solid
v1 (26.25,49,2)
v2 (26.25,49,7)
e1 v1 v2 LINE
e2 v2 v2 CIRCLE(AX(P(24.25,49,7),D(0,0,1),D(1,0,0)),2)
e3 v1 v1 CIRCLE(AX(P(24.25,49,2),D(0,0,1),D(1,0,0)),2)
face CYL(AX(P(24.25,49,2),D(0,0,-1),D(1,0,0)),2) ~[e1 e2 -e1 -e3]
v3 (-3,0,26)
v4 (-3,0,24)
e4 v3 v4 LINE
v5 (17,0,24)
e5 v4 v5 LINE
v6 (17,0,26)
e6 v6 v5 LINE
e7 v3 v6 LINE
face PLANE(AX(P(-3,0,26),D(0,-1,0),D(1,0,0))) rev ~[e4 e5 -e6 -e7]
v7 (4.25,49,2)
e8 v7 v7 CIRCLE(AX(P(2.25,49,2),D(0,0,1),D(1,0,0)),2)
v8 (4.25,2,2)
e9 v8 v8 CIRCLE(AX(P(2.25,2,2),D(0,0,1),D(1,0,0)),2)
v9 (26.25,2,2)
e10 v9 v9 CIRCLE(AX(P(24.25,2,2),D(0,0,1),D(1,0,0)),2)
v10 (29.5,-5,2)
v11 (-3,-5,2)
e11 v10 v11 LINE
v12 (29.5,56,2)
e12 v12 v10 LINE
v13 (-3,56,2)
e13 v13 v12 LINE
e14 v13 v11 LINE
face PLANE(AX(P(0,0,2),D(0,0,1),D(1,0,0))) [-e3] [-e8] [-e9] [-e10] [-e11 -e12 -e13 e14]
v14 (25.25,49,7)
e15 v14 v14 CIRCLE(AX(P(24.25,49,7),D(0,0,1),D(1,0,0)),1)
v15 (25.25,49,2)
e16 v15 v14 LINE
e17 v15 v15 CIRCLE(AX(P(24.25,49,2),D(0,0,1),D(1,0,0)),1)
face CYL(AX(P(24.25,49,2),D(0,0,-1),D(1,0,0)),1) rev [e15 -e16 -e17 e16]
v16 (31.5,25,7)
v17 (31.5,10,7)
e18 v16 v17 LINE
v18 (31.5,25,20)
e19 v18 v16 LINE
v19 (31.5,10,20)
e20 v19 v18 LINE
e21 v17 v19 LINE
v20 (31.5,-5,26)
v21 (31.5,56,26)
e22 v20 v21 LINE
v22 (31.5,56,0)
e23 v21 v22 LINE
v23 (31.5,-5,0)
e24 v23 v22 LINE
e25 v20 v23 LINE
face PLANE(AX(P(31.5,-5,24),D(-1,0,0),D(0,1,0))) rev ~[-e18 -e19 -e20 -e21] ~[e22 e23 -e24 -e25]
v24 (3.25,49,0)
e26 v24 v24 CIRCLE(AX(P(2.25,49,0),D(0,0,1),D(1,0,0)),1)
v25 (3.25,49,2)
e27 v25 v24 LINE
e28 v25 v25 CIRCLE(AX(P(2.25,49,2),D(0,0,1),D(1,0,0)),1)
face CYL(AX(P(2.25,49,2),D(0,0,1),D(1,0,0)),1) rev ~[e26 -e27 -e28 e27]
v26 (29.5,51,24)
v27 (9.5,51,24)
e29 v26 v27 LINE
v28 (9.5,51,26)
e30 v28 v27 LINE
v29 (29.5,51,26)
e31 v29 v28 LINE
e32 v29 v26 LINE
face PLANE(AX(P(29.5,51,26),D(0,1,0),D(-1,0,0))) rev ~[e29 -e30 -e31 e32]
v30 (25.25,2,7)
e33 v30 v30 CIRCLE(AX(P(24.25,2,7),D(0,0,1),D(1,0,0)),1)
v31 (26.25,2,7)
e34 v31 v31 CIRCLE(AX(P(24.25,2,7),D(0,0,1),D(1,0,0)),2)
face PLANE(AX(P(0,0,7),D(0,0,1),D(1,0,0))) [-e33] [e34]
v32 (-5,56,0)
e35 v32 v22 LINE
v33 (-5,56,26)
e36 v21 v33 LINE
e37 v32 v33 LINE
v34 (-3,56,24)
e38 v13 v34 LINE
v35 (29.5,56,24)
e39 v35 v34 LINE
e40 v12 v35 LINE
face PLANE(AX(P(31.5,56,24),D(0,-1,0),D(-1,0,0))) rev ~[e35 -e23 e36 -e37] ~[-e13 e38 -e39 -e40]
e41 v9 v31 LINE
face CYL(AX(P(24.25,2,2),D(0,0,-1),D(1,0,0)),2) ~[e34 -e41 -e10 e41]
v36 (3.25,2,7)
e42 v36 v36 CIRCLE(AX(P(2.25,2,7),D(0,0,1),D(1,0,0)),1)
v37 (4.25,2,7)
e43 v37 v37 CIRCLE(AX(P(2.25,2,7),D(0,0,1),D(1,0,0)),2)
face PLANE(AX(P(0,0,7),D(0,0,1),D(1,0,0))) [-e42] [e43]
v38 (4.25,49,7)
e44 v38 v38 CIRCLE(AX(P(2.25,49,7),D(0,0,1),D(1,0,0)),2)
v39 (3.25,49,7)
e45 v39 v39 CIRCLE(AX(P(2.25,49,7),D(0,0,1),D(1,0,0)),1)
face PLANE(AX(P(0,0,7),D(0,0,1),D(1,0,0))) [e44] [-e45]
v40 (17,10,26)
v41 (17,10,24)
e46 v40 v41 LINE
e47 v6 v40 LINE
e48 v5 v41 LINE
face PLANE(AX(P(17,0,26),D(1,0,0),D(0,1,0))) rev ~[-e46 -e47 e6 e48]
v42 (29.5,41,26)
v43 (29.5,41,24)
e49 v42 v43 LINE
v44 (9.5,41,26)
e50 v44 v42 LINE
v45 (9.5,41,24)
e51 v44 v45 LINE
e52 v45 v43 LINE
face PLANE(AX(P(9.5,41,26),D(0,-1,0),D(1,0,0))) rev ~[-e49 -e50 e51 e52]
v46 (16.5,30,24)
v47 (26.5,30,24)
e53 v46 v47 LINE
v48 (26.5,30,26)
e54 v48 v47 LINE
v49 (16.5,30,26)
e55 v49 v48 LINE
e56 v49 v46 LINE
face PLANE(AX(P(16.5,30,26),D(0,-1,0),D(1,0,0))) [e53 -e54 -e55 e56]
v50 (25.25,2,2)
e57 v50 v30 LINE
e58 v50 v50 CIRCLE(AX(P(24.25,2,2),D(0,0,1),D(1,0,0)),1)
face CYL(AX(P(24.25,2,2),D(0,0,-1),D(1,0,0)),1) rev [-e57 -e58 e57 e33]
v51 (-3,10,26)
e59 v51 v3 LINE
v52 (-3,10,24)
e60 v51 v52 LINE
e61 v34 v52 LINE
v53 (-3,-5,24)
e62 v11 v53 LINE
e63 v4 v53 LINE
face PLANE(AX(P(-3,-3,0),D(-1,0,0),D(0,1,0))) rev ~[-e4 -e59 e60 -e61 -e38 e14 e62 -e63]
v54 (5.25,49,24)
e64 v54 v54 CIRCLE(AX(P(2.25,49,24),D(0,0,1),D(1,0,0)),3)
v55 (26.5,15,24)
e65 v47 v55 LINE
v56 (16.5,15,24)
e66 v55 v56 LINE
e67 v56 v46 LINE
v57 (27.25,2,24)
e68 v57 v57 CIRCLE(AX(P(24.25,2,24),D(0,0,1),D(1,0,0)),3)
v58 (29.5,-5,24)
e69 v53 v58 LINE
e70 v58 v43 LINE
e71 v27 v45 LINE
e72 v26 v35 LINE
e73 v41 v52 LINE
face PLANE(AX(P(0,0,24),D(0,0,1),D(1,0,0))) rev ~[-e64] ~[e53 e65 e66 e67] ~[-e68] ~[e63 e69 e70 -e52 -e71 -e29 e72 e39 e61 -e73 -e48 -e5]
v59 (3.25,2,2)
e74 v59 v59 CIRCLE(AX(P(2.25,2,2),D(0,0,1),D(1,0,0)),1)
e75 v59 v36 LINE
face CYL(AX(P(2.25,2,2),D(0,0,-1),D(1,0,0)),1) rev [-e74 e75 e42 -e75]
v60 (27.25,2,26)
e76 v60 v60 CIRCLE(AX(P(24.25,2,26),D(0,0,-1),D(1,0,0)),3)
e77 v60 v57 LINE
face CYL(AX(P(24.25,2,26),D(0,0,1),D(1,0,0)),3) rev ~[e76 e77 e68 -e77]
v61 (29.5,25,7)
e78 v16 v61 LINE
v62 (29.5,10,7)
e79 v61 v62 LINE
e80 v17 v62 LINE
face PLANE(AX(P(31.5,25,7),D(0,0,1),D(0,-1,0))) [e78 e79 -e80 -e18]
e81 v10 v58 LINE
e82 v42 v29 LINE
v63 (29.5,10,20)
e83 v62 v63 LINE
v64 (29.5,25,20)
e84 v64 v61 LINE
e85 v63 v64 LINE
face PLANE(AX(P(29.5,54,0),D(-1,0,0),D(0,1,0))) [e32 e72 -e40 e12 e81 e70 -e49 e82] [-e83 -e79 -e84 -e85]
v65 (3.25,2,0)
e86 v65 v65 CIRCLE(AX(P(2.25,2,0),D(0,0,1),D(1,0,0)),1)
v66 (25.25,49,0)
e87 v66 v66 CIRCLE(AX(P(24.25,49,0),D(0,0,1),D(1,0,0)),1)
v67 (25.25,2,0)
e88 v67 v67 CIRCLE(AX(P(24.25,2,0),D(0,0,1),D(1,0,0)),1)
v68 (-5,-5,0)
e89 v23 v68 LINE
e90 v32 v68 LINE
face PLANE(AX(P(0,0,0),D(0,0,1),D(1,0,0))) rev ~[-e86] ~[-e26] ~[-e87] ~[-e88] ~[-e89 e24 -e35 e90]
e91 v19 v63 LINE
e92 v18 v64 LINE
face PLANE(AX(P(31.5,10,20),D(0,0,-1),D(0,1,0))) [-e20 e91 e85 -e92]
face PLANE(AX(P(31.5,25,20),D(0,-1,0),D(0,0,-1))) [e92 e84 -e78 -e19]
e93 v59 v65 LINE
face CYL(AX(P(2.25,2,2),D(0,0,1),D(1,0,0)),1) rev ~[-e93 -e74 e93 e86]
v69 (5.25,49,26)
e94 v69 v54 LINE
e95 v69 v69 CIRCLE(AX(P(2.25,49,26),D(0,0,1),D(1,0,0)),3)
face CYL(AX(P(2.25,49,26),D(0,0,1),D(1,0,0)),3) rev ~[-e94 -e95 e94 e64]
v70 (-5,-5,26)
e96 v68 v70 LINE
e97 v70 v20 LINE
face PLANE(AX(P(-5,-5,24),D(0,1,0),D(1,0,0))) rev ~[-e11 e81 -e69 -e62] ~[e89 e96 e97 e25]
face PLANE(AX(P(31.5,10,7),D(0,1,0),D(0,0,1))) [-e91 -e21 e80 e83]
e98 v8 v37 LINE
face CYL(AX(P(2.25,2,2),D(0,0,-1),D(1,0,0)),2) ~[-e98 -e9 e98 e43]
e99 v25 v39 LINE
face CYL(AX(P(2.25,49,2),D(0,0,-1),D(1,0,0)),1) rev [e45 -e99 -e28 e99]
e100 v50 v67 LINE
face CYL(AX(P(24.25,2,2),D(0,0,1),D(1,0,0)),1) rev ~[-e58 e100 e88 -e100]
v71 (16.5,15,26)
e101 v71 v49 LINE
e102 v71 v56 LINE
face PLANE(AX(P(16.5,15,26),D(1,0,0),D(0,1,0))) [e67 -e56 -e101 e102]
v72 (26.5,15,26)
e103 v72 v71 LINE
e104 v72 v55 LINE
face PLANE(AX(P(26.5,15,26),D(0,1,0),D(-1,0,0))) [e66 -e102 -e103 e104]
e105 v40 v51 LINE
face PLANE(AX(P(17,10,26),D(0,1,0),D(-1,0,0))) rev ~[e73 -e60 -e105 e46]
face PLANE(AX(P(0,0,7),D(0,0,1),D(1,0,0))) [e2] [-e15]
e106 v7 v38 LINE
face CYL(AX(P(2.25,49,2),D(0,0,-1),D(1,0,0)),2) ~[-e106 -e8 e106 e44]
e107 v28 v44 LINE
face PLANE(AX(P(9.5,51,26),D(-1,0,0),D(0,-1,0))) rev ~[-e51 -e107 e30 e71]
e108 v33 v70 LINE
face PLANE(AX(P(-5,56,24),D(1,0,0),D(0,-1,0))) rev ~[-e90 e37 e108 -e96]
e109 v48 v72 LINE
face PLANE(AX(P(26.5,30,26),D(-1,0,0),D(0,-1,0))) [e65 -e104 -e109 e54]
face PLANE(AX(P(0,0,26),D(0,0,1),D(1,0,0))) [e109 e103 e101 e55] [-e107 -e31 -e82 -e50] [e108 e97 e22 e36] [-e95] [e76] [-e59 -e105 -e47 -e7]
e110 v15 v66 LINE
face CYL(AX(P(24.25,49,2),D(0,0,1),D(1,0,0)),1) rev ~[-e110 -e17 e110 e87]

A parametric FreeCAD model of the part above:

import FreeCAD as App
import Part
import Sketcher
Q = App.Units.Quantity

doc = App.newDocument("Part")
body = doc.addObject("PartDesign::Body", "Body")

sketch1 = body.newObject("Sketcher::SketchObject", "Sketch")
sketch1.AttachmentSupport = (doc.getObject("XY_Plane"), [""])
sketch1.MapMode = "FlatFace"
sketch1.addGeometry(Part.LineSegment(App.Vector(-5, 56, 0), App.Vector(-5, -5, 0)), False)
sketch1.addGeometry(Part.LineSegment(App.Vector(-5, -5, 0), App.Vector(32, -5, 0)), False)
sketch1.addGeometry(Part.LineSegment(App.Vector(32, -5, 0), App.Vector(32, 56, 0)), False)
sketch1.addGeometry(Part.LineSegment(App.Vector(32, 56, 0), App.Vector(-5, 56, 0)), False)
sketch1.addConstraint(Sketcher.Constraint("Coincident", 0, 2, 1, 1))
sketch1.addConstraint(Sketcher.Constraint("Coincident", 1, 2, 2, 1))
sketch1.addConstraint(Sketcher.Constraint("Coincident", 2, 2, 3, 1))
sketch1.addConstraint(Sketcher.Constraint("Coincident", 3, 2, 0, 1))
sketch1.addConstraint(Sketcher.Constraint("Vertical", 0))
sketch1.addConstraint(Sketcher.Constraint("Horizontal", 1))
sketch1.addConstraint(Sketcher.Constraint("Vertical", 2))
sketch1.addConstraint(Sketcher.Constraint("Horizontal", 3))
sketch1.addConstraint(Sketcher.Constraint("DistanceY", 0, 2, 0, 1, Q("61 mm")))
sketch1.addConstraint(Sketcher.Constraint("DistanceX", 1, 1, 1, 2, Q("36.5 mm")))
sketch1.addConstraint(Sketcher.Constraint("DistanceX", 0, 2, -1, 1, Q("5 mm")))
sketch1.addConstraint(Sketcher.Constraint("DistanceY", 0, 2, -1, 1, Q("5 mm")))
pad1 = body.newObject("PartDesign::Pad", "Pad")
pad1.Profile = sketch1
pad1.Length = 2

sketch2 = body.newObject("Sketcher::SketchObject", "Sketch001")
sketch2.AttachmentSupport = (doc.getObject("XY_Plane"), [""])
sketch2.MapMode = "FlatFace"
sketch2.addGeometry(Part.LineSegment(App.Vector(-3, -5, 0), App.Vector(-3, 56, 0)), False)
sketch2.addGeometry(Part.LineSegment(App.Vector(-3, 56, 0), App.Vector(-5, 56, 0)), False)
sketch2.addGeometry(Part.LineSegment(App.Vector(-5, 56, 0), App.Vector(-5, -5, 0)), False)
sketch2.addGeometry(Part.LineSegment(App.Vector(-5, -5, 0), App.Vector(-3, -5, 0)), False)
sketch2.addGeometry(Part.LineSegment(App.Vector(29.5, 56, 0), App.Vector(29.5, -5, 0)), False)
sketch2.addGeometry(Part.LineSegment(App.Vector(29.5, -5, 0), App.Vector(31.5, -5, 0)), False)
sketch2.addGeometry(Part.LineSegment(App.Vector(31.5, -5, 0), App.Vector(31.5, 56, 0)), False)
sketch2.addGeometry(Part.LineSegment(App.Vector(31.5, 56, 0), App.Vector(29.5, 56, 0)), False)
sketch2.addConstraint(Sketcher.Constraint("Coincident", 0, 2, 1, 1))
sketch2.addConstraint(Sketcher.Constraint("Coincident", 1, 2, 2, 1))
sketch2.addConstraint(Sketcher.Constraint("Coincident", 2, 2, 3, 1))
sketch2.addConstraint(Sketcher.Constraint("Coincident", 3, 2, 0, 1))
sketch2.addConstraint(Sketcher.Constraint("Coincident", 4, 2, 5, 1))
sketch2.addConstraint(Sketcher.Constraint("Coincident", 5, 2, 6, 1))
sketch2.addConstraint(Sketcher.Constraint("Coincident", 6, 2, 7, 1))
sketch2.addConstraint(Sketcher.Constraint("Coincident", 7, 2, 4, 1))
sketch2.addConstraint(Sketcher.Constraint("Vertical", 0))
sketch2.addConstraint(Sketcher.Constraint("Horizontal", 1))
sketch2.addConstraint(Sketcher.Constraint("Vertical", 2))
sketch2.addConstraint(Sketcher.Constraint("Horizontal", 3))
sketch2.addConstraint(Sketcher.Constraint("Vertical", 4))
sketch2.addConstraint(Sketcher.Constraint("Horizontal", 5))
sketch2.addConstraint(Sketcher.Constraint("Vertical", 6))
sketch2.addConstraint(Sketcher.Constraint("Horizontal", 7))
sketch2.addConstraint(Sketcher.Constraint("Horizontal", 3, 2, 4, 2))
sketch2.addConstraint(Sketcher.Constraint("Horizontal", 1, 2, 6, 2))
sketch2.addConstraint(Sketcher.Constraint("Equal", 3, 5))
sketch2.addConstraint(Sketcher.Constraint("DistanceX", 1, 2, 1, 1, Q("2 mm")))
sketch2.addConstraint(Sketcher.Constraint("DistanceX", 0, 2, -1, 1, Q("3 mm")))
sketch2.addConstraint(Sketcher.Constraint("DistanceY", 0, 1, 0, 2, Q("61 mm")))
sketch2.addConstraint(Sketcher.Constraint("DistanceY", -1, 1, 0, 2, Q("56 mm")))
sketch2.addConstraint(Sketcher.Constraint("DistanceX", -1, 1, 4, 2, Q("29.5 mm")))
pad2 = body.newObject("PartDesign::Pad", "Pad001")
pad2.Profile = sketch2
pad2.Length = 24

sketch3 = body.newObject("Sketcher::SketchObject", "Sketch002")
sketch3.AttachmentSupport = (doc.getObject("XY_Plane"), [""])
sketch3.MapMode = "FlatFace"
sketch3.AttachmentOffset = App.Placement(App.Vector(0, 0, 2), App.Rotation())
sketch3.addGeometry(Part.Circle(App.Vector(2.2, 49, 0), App.Vector(0, 0, 1), 2), False)
sketch3.addGeometry(Part.Circle(App.Vector(2.2, 49, 0), App.Vector(0, 0, 1), 1), False)
sketch3.addGeometry(Part.Circle(App.Vector(24.2, 49, 0), App.Vector(0, 0, 1), 2), False)
sketch3.addGeometry(Part.Circle(App.Vector(24.2, 49, 0), App.Vector(0, 0, 1), 1), False)
sketch3.addGeometry(Part.Circle(App.Vector(2.2, 2, 0), App.Vector(0, 0, 1), 2), False)
sketch3.addGeometry(Part.Circle(App.Vector(2.2, 2, 0), App.Vector(0, 0, 1), 1), False)
sketch3.addGeometry(Part.Circle(App.Vector(24.2, 2, 0), App.Vector(0, 0, 1), 2), False)
sketch3.addGeometry(Part.Circle(App.Vector(24.2, 2, 0), App.Vector(0, 0, 1), 1), False)
sketch3.addConstraint(Sketcher.Constraint("Coincident", 1, 3, 0, 3))
sketch3.addConstraint(Sketcher.Constraint("Coincident", 3, 3, 2, 3))
sketch3.addConstraint(Sketcher.Constraint("Coincident", 5, 3, 4, 3))
sketch3.addConstraint(Sketcher.Constraint("Coincident", 7, 3, 6, 3))
sketch3.addConstraint(Sketcher.Constraint("Equal", 0, 2))
sketch3.addConstraint(Sketcher.Constraint("Equal", 1, 3))
sketch3.addConstraint(Sketcher.Constraint("Equal", 2, 4))
sketch3.addConstraint(Sketcher.Constraint("Equal", 3, 5))
sketch3.addConstraint(Sketcher.Constraint("Equal", 4, 6))
sketch3.addConstraint(Sketcher.Constraint("Equal", 5, 7))
sketch3.addConstraint(Sketcher.Constraint("Horizontal", 1, 3, 2, 3))
sketch3.addConstraint(Sketcher.Constraint("Horizontal", 5, 3, 6, 3))
sketch3.addConstraint(Sketcher.Constraint("Vertical", 1, 3, 4, 3))
sketch3.addConstraint(Sketcher.Constraint("Vertical", 3, 3, 6, 3))
sketch3.addConstraint(Sketcher.Constraint("Diameter", 0, Q("4 mm")))
sketch3.addConstraint(Sketcher.Constraint("Diameter", 1, Q("2 mm")))
sketch3.addConstraint(Sketcher.Constraint("DistanceY", -1, 1, 4, 3, Q("2 mm")))
sketch3.addConstraint(Sketcher.Constraint("DistanceY", -1, 1, 0, 3, Q("49 mm")))
sketch3.addConstraint(Sketcher.Constraint("DistanceX", 0, 3, 2, 3, Q("22 mm")))
sketch3.addConstraint(Sketcher.Constraint("DistanceX", -1, 1, 0, 3, Q("2.25 mm")))
pad3 = body.newObject("PartDesign::Pad", "Pad002")
pad3.Profile = sketch3
pad3.Length = 5

sketch4 = body.newObject("Sketcher::SketchObject", "Sketch003")
sketch4.AttachmentSupport = (doc.getObject("XY_Plane"), [""])
sketch4.MapMode = "FlatFace"
sketch4.AttachmentOffset = App.Placement(App.Vector(0, 0, 2), App.Rotation())
sketch4.addGeometry(Part.Circle(App.Vector(2.2, 49, 0), App.Vector(0, 0, 1), 1), False)
sketch4.addGeometry(Part.Circle(App.Vector(24.2, 49, 0), App.Vector(0, 0, 1), 1), False)
sketch4.addGeometry(Part.Circle(App.Vector(2.2, 2, 0), App.Vector(0, 0, 1), 1), False)
sketch4.addGeometry(Part.Circle(App.Vector(24.2, 2, 0), App.Vector(0, 0, 1), 1), False)
sketch4.addConstraint(Sketcher.Constraint("Equal", 0, 1))
sketch4.addConstraint(Sketcher.Constraint("Equal", 1, 2))
sketch4.addConstraint(Sketcher.Constraint("Equal", 2, 3))
sketch4.addConstraint(Sketcher.Constraint("Horizontal", 0, 3, 1, 3))
sketch4.addConstraint(Sketcher.Constraint("Horizontal", 2, 3, 3, 3))
sketch4.addConstraint(Sketcher.Constraint("Vertical", 0, 3, 2, 3))
sketch4.addConstraint(Sketcher.Constraint("Vertical", 1, 3, 3, 3))
sketch4.addConstraint(Sketcher.Constraint("Diameter", 0, Q("2 mm")))
sketch4.addConstraint(Sketcher.Constraint("DistanceY", -1, 1, 2, 3, Q("2 mm")))
sketch4.addConstraint(Sketcher.Constraint("DistanceY", -1, 1, 0, 3, Q("49 mm")))
sketch4.addConstraint(Sketcher.Constraint("DistanceX", 0, 3, 1, 3, Q("22 mm")))
sketch4.addConstraint(Sketcher.Constraint("DistanceX", -1, 1, 0, 3, Q("2.25 mm")))
pocket1 = body.newObject("PartDesign::Pocket", "Pocket")
pocket1.Profile = sketch4
pocket1.Length = 5

sketch5 = body.newObject("Sketcher::SketchObject", "Sketch004")
sketch5.AttachmentSupport = (doc.getObject("XY_Plane"), [""])
sketch5.MapMode = "FlatFace"
sketch5.AttachmentOffset = App.Placement(App.Vector(0, 0, 24), App.Rotation())
sketch5.addGeometry(Part.LineSegment(App.Vector(32, 56, 0), App.Vector(-5, 56, 0)), False)
sketch5.addGeometry(Part.LineSegment(App.Vector(-5, 56, 0), App.Vector(-5, -5, 0)), False)
sketch5.addGeometry(Part.LineSegment(App.Vector(-5, -5, 0), App.Vector(32, -5, 0)), False)
sketch5.addGeometry(Part.LineSegment(App.Vector(32, -5, 0), App.Vector(32, 56, 0)), False)
sketch5.addConstraint(Sketcher.Constraint("Coincident", 0, 2, 1, 1))
sketch5.addConstraint(Sketcher.Constraint("Coincident", 1, 2, 2, 1))
sketch5.addConstraint(Sketcher.Constraint("Coincident", 2, 2, 3, 1))
sketch5.addConstraint(Sketcher.Constraint("Coincident", 3, 2, 0, 1))
sketch5.addConstraint(Sketcher.Constraint("Horizontal", 0))
sketch5.addConstraint(Sketcher.Constraint("Vertical", 1))
sketch5.addConstraint(Sketcher.Constraint("Horizontal", 2))
sketch5.addConstraint(Sketcher.Constraint("Vertical", 3))
sketch5.addConstraint(Sketcher.Constraint("DistanceY", 1, 2, 1, 1, Q("61 mm")))
sketch5.addConstraint(Sketcher.Constraint("DistanceX", 0, 2, 0, 1, Q("36.5 mm")))
sketch5.addConstraint(Sketcher.Constraint("DistanceX", 0, 2, -1, 1, Q("5 mm")))
sketch5.addConstraint(Sketcher.Constraint("DistanceY", -1, 1, 0, 2, Q("56 mm")))
pad4 = body.newObject("PartDesign::Pad", "Pad003")
pad4.Profile = sketch5
pad4.Length = 2

sketch6 = body.newObject("Sketcher::SketchObject", "Sketch005")
sketch6.AttachmentSupport = (doc.getObject("XY_Plane"), [""])
sketch6.MapMode = "FlatFace"
sketch6.AttachmentOffset = App.Placement(App.Vector(0, 0, 26), App.Rotation())
sketch6.addGeometry(Part.LineSegment(App.Vector(10, 41, 0), App.Vector(30, 41, 0)), False)
sketch6.addGeometry(Part.LineSegment(App.Vector(30, 41, 0), App.Vector(30, 51, 0)), False)
sketch6.addGeometry(Part.LineSegment(App.Vector(30, 51, 0), App.Vector(10, 51, 0)), False)
sketch6.addGeometry(Part.LineSegment(App.Vector(10, 51, 0), App.Vector(10, 41, 0)), False)
sketch6.addGeometry(Part.LineSegment(App.Vector(17, 10, 0), App.Vector(-3, 10, 0)), False)
sketch6.addGeometry(Part.LineSegment(App.Vector(-3, 10, 0), App.Vector(-3, 0, 0)), False)
sketch6.addGeometry(Part.LineSegment(App.Vector(-3, 0, 0), App.Vector(17, 0, 0)), False)
sketch6.addGeometry(Part.LineSegment(App.Vector(17, 0, 0), App.Vector(17, 10, 0)), False)
sketch6.addConstraint(Sketcher.Constraint("Coincident", 0, 2, 1, 1))
sketch6.addConstraint(Sketcher.Constraint("Coincident", 1, 2, 2, 1))
sketch6.addConstraint(Sketcher.Constraint("Coincident", 2, 2, 3, 1))
sketch6.addConstraint(Sketcher.Constraint("Coincident", 3, 2, 0, 1))
sketch6.addConstraint(Sketcher.Constraint("Coincident", 4, 2, 5, 1))
sketch6.addConstraint(Sketcher.Constraint("Coincident", 5, 2, 6, 1))
sketch6.addConstraint(Sketcher.Constraint("Coincident", 6, 2, 7, 1))
sketch6.addConstraint(Sketcher.Constraint("Coincident", 7, 2, 4, 1))
sketch6.addConstraint(Sketcher.Constraint("Horizontal", 0))
sketch6.addConstraint(Sketcher.Constraint("Vertical", 1))
sketch6.addConstraint(Sketcher.Constraint("Horizontal", 2))
sketch6.addConstraint(Sketcher.Constraint("Vertical", 3))
sketch6.addConstraint(Sketcher.Constraint("Horizontal", 4))
sketch6.addConstraint(Sketcher.Constraint("Vertical", 5))
sketch6.addConstraint(Sketcher.Constraint("Horizontal", 6))
sketch6.addConstraint(Sketcher.Constraint("Vertical", 7))
sketch6.addConstraint(Sketcher.Constraint("PointOnObject", 5, 2, -1))
sketch6.addConstraint(Sketcher.Constraint("Equal", 2, 4))
sketch6.addConstraint(Sketcher.Constraint("Equal", 3, 5))
sketch6.addConstraint(Sketcher.Constraint("DistanceX", 0, 1, 0, 2, Q("20 mm")))
sketch6.addConstraint(Sketcher.Constraint("DistanceY", 1, 1, 1, 2, Q("10 mm")))
sketch6.addConstraint(Sketcher.Constraint("DistanceY", -1, 1, 0, 2, Q("41 mm")))
sketch6.addConstraint(Sketcher.Constraint("DistanceX", 4, 2, -1, 1, Q("3 mm")))
sketch6.addConstraint(Sketcher.Constraint("DistanceX", -1, 1, 0, 2, Q("29.5 mm")))
pocket2 = body.newObject("PartDesign::Pocket", "Pocket001")
pocket2.Profile = sketch6
pocket2.Length = 2

sketch7 = body.newObject("Sketcher::SketchObject", "Sketch006")
sketch7.AttachmentSupport = (doc.getObject("XY_Plane"), [""])
sketch7.MapMode = "FlatFace"
sketch7.AttachmentOffset = App.Placement(App.Vector(0, 0, 26), App.Rotation())
sketch7.addGeometry(Part.Circle(App.Vector(24.2, 2, 0), App.Vector(0, 0, 1), 3), False)
sketch7.addGeometry(Part.LineSegment(App.Vector(16.5, 15, 0), App.Vector(26.5, 15, 0)), False)
sketch7.addGeometry(Part.LineSegment(App.Vector(26.5, 15, 0), App.Vector(26.5, 30, 0)), False)
sketch7.addGeometry(Part.LineSegment(App.Vector(26.5, 30, 0), App.Vector(16.5, 30, 0)), False)
sketch7.addGeometry(Part.LineSegment(App.Vector(16.5, 30, 0), App.Vector(16.5, 15, 0)), False)
sketch7.addGeometry(Part.Circle(App.Vector(2.2, 49, 0), App.Vector(0, 0, 1), 3), False)
sketch7.addConstraint(Sketcher.Constraint("Coincident", 1, 2, 2, 1))
sketch7.addConstraint(Sketcher.Constraint("Coincident", 2, 2, 3, 1))
sketch7.addConstraint(Sketcher.Constraint("Coincident", 3, 2, 4, 1))
sketch7.addConstraint(Sketcher.Constraint("Coincident", 4, 2, 1, 1))
sketch7.addConstraint(Sketcher.Constraint("Horizontal", 1))
sketch7.addConstraint(Sketcher.Constraint("Vertical", 2))
sketch7.addConstraint(Sketcher.Constraint("Horizontal", 3))
sketch7.addConstraint(Sketcher.Constraint("Vertical", 4))
sketch7.addConstraint(Sketcher.Constraint("Equal", 0, 5))
sketch7.addConstraint(Sketcher.Constraint("Diameter", 0, Q("6 mm")))
sketch7.addConstraint(Sketcher.Constraint("DistanceX", 1, 1, 1, 2, Q("10 mm")))
sketch7.addConstraint(Sketcher.Constraint("DistanceY", 2, 1, 2, 2, Q("15 mm")))
sketch7.addConstraint(Sketcher.Constraint("DistanceY", -1, 1, 1, 2, Q("15 mm")))
sketch7.addConstraint(Sketcher.Constraint("DistanceY", -1, 1, 0, 3, Q("2 mm")))
sketch7.addConstraint(Sketcher.Constraint("DistanceY", -1, 1, 5, 3, Q("49 mm")))
sketch7.addConstraint(Sketcher.Constraint("DistanceX", 5, 3, 0, 3, Q("22 mm")))
sketch7.addConstraint(Sketcher.Constraint("DistanceX", -1, 1, 1, 2, Q("26.5 mm")))
sketch7.addConstraint(Sketcher.Constraint("DistanceX", -1, 1, 0, 3, Q("24.25 mm")))
pocket3 = body.newObject("PartDesign::Pocket", "Pocket002")
pocket3.Profile = sketch7
pocket3.Length = 2

sketch8 = body.newObject("Sketcher::SketchObject", "Sketch007")
sketch8.AttachmentSupport = (doc.getObject("YZ_Plane"), [""])
sketch8.MapMode = "FlatFace"
sketch8.AttachmentOffset = App.Placement(App.Vector(0, 0, 31.5), App.Rotation())
sketch8.addGeometry(Part.LineSegment(App.Vector(10, 20, 0), App.Vector(10, 7, 0)), False)
sketch8.addGeometry(Part.LineSegment(App.Vector(10, 7, 0), App.Vector(25, 7, 0)), False)
sketch8.addGeometry(Part.LineSegment(App.Vector(25, 7, 0), App.Vector(25, 20, 0)), False)
sketch8.addGeometry(Part.LineSegment(App.Vector(25, 20, 0), App.Vector(10, 20, 0)), False)
sketch8.addConstraint(Sketcher.Constraint("Coincident", 0, 2, 1, 1))
sketch8.addConstraint(Sketcher.Constraint("Coincident", 1, 2, 2, 1))
sketch8.addConstraint(Sketcher.Constraint("Coincident", 2, 2, 3, 1))
sketch8.addConstraint(Sketcher.Constraint("Coincident", 3, 2, 0, 1))
sketch8.addConstraint(Sketcher.Constraint("Vertical", 0))
sketch8.addConstraint(Sketcher.Constraint("Horizontal", 1))
sketch8.addConstraint(Sketcher.Constraint("Vertical", 2))
sketch8.addConstraint(Sketcher.Constraint("Horizontal", 3))
sketch8.addConstraint(Sketcher.Constraint("DistanceX", 1, 1, 1, 2, Q("15 mm")))
sketch8.addConstraint(Sketcher.Constraint("DistanceY", 0, 2, 0, 1, Q("13 mm")))
sketch8.addConstraint(Sketcher.Constraint("DistanceX", -1, 1, 0, 2, Q("10 mm")))
sketch8.addConstraint(Sketcher.Constraint("DistanceY", -1, 1, 0, 2, Q("7 mm")))
pocket4 = body.newObject("PartDesign::Pocket", "Pocket003")
pocket4.Profile = sketch8
pocket4.Length = 2

doc.recompute()
